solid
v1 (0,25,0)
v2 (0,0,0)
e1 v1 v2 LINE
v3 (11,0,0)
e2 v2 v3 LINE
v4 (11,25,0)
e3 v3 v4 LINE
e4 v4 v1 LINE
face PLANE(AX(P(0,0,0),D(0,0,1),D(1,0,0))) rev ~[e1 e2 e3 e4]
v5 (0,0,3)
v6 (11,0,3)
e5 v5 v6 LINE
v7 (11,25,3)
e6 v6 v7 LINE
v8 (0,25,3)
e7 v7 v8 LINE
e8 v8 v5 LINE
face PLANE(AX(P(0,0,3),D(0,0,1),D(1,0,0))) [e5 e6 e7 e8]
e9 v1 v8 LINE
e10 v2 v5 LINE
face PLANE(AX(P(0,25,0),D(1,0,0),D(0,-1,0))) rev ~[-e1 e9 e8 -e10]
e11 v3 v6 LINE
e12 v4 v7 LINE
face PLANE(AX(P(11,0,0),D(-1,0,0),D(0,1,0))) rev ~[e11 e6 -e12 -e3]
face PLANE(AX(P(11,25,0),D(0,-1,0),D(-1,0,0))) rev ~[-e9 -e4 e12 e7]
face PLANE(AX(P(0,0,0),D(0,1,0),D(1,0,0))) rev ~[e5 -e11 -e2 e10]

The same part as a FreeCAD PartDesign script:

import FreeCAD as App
import Part
import Sketcher
from FreeCAD import Vector


def add_polygon(sketch, points):
    """Adds a closed chain of lines whose ends are joined by coincident constraints."""
    first, n = sketch.GeometryCount, len(points)
    for a, b in zip(points, points[1:] + points[:1]):
        sketch.addGeometry(Part.LineSegment(App.Vector(*a, 0), App.Vector(*b, 0)), False)
    for i in range(n):
        sketch.addConstraint(Sketcher.Constraint("Coincident", first + i, 2, first + (i + 1) % n, 1))

doc = App.newDocument("Part")
params = doc.addObject("Spreadsheet::Sheet", "Params")
for row, (alias, value) in enumerate([
    ("sketch1_width", "11 mm"),
    ("sketch1_height", "25 mm"),
    ("pad1_length", "3 mm"),
], start=1):
    params.set(f"A{row}", alias)
    params.set(f"B{row}", "=" + value)
    params.setAlias(f"B{row}", alias)

body = doc.addObject("PartDesign::Body", "Body")

sketch1 = body.newObject("Sketcher::SketchObject", "Sketch")
sketch1.AttachmentSupport = (doc.getObject("XY_Plane"), [""])
sketch1.MapMode = "FlatFace"
add_polygon(sketch1, [(0, 25), (0, 0), (11, 0), (11, 25)])
sketch1.addConstraint([
    Sketcher.Constraint("Vertical", 0),
    Sketcher.Constraint("Horizontal", 1),
    Sketcher.Constraint("Vertical", 2),
    Sketcher.Constraint("Horizontal", 3),
    Sketcher.Constraint("Coincident", 0, 2, -1, 1),
    Sketcher.Constraint("DistanceX", 1, 1, 1, 2, 11.0),
    Sketcher.Constraint("DistanceY", 0, 2, 0, 1, 25.0),
])
sketch1.setExpression("Constraints[9]", "Params.sketch1_width")
sketch1.setExpression("Constraints[10]", "Params.sketch1_height")
pad1 = body.newObject("PartDesign::Pad", "Pad")
pad1.Profile = sketch1
pad1.setExpression("Length", "Params.pad1_length")

doc.recompute()
